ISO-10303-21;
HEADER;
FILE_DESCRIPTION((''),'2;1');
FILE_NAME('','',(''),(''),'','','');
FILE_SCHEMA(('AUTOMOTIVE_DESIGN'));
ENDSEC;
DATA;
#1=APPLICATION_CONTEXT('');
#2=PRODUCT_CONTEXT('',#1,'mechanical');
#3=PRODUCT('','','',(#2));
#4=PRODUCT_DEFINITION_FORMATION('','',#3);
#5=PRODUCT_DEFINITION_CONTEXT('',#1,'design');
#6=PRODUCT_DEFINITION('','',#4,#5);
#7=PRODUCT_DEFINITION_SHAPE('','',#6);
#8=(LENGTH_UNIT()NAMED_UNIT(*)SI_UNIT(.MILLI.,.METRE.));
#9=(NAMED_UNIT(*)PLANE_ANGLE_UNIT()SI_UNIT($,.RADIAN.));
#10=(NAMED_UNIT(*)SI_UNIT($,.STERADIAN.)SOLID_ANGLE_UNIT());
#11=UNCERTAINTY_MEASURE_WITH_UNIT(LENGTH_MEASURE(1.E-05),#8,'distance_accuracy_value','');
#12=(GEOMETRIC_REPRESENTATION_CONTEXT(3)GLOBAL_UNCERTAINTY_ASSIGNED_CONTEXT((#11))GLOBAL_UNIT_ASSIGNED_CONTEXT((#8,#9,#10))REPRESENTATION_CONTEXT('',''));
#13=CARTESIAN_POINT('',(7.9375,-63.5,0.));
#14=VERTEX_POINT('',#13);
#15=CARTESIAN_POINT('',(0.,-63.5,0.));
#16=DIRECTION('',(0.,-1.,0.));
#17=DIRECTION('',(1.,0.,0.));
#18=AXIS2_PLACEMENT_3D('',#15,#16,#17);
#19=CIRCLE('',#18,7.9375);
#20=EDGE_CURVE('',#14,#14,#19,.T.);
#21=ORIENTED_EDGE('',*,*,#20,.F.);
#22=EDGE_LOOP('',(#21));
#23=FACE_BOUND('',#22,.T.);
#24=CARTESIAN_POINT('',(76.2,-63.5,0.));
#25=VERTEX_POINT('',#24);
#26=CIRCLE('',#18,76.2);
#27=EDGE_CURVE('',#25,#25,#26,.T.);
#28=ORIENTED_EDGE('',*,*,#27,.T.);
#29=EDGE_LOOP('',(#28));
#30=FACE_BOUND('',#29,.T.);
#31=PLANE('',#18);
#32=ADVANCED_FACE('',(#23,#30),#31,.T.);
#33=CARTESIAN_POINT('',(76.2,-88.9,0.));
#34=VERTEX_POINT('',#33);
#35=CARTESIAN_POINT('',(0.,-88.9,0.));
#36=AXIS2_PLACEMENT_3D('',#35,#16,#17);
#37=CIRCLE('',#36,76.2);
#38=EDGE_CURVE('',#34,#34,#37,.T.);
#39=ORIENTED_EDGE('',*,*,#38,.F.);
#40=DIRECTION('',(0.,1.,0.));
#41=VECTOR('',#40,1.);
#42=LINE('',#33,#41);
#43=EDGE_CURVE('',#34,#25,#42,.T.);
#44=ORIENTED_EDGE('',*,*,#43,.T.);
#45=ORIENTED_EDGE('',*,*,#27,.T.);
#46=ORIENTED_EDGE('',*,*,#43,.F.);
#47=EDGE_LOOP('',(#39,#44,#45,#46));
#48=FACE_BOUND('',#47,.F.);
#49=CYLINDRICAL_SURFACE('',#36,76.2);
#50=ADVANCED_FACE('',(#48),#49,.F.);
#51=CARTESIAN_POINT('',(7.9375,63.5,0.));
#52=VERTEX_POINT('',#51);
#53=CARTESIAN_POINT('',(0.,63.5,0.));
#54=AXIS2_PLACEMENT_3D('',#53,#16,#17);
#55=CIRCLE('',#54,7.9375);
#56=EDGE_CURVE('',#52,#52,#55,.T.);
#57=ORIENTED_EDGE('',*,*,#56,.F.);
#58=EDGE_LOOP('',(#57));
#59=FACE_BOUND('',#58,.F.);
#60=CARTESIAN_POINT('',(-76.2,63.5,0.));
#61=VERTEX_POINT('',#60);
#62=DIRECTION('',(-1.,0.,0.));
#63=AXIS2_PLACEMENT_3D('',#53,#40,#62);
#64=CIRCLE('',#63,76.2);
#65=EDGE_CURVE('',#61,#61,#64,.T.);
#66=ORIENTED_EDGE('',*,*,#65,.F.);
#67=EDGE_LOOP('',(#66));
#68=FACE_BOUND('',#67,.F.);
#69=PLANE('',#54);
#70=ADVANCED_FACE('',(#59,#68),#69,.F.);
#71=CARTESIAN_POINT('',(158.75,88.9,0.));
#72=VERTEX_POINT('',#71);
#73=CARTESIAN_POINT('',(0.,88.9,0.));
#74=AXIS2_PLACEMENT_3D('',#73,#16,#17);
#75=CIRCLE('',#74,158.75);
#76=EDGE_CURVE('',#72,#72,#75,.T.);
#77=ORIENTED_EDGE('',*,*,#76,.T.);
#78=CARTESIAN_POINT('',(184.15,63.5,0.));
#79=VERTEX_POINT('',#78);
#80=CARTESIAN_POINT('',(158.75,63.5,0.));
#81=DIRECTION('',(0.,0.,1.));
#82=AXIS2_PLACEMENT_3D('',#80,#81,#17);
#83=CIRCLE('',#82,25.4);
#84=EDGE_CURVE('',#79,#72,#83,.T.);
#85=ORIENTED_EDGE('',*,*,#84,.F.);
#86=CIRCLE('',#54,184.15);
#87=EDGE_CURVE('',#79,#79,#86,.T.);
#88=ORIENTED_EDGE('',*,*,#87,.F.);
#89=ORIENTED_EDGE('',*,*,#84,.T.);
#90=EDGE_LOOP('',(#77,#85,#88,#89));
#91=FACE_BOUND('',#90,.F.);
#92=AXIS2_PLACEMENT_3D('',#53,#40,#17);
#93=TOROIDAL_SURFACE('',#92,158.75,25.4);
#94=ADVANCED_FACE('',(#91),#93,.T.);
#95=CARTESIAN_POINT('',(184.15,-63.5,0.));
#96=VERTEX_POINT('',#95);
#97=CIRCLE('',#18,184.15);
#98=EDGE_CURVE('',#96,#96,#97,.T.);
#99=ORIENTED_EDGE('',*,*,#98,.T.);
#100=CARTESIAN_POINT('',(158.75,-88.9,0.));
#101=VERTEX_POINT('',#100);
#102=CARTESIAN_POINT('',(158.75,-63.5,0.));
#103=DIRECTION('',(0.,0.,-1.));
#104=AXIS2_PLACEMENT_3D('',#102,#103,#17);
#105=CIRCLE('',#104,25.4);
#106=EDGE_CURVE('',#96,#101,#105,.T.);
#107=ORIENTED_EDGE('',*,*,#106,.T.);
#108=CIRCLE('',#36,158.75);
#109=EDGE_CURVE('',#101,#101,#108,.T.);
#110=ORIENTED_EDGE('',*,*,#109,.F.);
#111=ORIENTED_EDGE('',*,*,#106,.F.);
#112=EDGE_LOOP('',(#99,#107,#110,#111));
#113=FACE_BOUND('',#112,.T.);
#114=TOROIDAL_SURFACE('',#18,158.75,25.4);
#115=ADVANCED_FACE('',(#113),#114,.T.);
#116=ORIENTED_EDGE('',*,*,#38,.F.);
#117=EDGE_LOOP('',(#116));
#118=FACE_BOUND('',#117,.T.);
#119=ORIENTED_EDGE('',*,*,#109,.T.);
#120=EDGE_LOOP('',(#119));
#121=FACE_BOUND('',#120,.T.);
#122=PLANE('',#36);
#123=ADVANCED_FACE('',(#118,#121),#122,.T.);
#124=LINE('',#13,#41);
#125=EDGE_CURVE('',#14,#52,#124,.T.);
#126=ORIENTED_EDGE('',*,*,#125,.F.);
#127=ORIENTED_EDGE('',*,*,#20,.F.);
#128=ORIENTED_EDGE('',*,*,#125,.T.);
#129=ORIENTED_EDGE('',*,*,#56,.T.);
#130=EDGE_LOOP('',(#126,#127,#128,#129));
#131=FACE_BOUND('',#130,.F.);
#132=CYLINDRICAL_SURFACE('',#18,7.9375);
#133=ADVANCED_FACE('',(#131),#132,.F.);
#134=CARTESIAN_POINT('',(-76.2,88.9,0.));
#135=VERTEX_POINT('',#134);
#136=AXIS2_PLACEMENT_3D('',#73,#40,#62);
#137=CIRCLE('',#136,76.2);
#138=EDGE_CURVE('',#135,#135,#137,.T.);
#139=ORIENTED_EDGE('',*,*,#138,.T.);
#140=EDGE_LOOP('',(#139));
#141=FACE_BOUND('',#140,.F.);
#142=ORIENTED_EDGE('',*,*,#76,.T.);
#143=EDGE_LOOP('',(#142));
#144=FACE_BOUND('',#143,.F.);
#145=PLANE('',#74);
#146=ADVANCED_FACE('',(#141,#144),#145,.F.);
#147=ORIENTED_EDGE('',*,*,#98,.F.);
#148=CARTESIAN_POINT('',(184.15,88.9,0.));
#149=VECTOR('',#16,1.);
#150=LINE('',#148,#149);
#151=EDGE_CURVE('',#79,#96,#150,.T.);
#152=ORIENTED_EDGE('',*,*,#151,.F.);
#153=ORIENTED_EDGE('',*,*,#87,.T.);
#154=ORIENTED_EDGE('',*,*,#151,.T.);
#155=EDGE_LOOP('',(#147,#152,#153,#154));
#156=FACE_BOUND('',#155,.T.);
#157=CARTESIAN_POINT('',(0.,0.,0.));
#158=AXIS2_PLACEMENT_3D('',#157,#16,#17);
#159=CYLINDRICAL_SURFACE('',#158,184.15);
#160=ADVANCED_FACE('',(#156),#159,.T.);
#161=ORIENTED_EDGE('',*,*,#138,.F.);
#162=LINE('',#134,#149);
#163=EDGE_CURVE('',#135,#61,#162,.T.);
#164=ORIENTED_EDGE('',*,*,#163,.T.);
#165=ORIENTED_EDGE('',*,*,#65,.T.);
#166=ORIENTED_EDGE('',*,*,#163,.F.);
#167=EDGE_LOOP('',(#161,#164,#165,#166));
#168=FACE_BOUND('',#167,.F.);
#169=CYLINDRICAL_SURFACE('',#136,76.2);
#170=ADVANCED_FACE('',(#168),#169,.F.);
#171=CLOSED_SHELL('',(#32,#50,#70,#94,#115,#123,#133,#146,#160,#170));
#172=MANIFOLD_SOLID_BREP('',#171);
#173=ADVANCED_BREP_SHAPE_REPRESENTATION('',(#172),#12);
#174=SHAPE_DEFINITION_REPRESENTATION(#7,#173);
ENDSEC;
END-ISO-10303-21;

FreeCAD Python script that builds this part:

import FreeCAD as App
import Part
import Sketcher
Q = App.Units.Quantity


def edges_at(feature, points):
    """Names of the edges that pass closest to the given points."""
    edges = feature.Shape.Edges
    near = lambda p: min(range(len(edges)), key=lambda i: edges[i].distToShape(Part.Vertex(*p))[0])
    return sorted({f"Edge{near(p) + 1}" for p in points})

doc = App.newDocument("Part")
body = doc.addObject("PartDesign::Body", "Body")

sketch1 = doc.addObject("Sketcher::SketchObject", "Sketch")
body.addObject(sketch1)
sketch1.AttachmentSupport = (doc.XZ_Plane, [""])
sketch1.MapMode = "FlatFace"
sketch1.addGeometry(Part.Circle(App.Vector(0, 0, 0), App.Vector(0, 0, 1), 184), False)
sketch1.addConstraint([
    Sketcher.Constraint("Coincident", 0, 3, -1, 1),
    Sketcher.Constraint("Diameter", 0, Q("14.5 in")),
])
pad1 = doc.addObject("PartDesign::Pad", "Pad")
body.addObject(pad1)
pad1.Profile = sketch1
pad1.Length = Q("7 in")
pad1.Midplane = True

sketch2 = doc.addObject("Sketcher::SketchObject", "Sketch001")
body.addObject(sketch2)
sketch2.AttachmentSupport = (doc.XZ_Plane, [""])
sketch2.MapMode = "FlatFace"
sketch2.AttachmentOffset = App.Placement(App.Vector(0, 0, 3.5 * 25.4), App.Rotation())
sketch2.addGeometry(Part.Circle(App.Vector(0, 0, 0), App.Vector(0, 0, 1), 76), False)
sketch2.addConstraint([
    Sketcher.Constraint("Coincident", 0, 3, -1, 1),
    Sketcher.Constraint("Diameter", 0, Q("6 in")),
])
pocket1 = doc.addObject("PartDesign::Pocket", "Pocket")
body.addObject(pocket1)
pocket1.Profile = sketch2
pocket1.Length = Q("1 in")

sketch3 = doc.addObject("Sketcher::SketchObject", "Sketch002")
body.addObject(sketch3)
sketch3.AttachmentSupport = (doc.XZ_Plane, [""])
sketch3.MapMode = "FlatFace"
sketch3.AttachmentOffset = App.Placement(App.Vector(0, 0, -3.5 * 25.4), App.Rotation())
sketch3.addGeometry(Part.Circle(App.Vector(0, 0, 0), App.Vector(0, 0, 1), 76), False)
sketch3.addConstraint([
    Sketcher.Constraint("Coincident", 0, 3, -1, 1),
    Sketcher.Constraint("Diameter", 0, Q("6 in")),
])
pocket2 = doc.addObject("PartDesign::Pocket", "Pocket001")
body.addObject(pocket2)
pocket2.Profile = sketch3
pocket2.Length = Q("1 in")
pocket2.Reversed = True

sketch4 = doc.addObject("Sketcher::SketchObject", "Sketch003")
body.addObject(sketch4)
sketch4.AttachmentSupport = (doc.XZ_Plane, [""])
sketch4.MapMode = "FlatFace"
sketch4.AttachmentOffset = App.Placement(App.Vector(0, 0, 3.5 * 25.4), App.Rotation())
sketch4.addGeometry(Part.Circle(App.Vector(0, 0, 0), App.Vector(0, 0, 1), 13), False)
sketch4.addConstraint([
    Sketcher.Constraint("Coincident", 0, 3, -1, 1),
    Sketcher.Constraint("Diameter", 0, Q("1 in")),
])
pocket3 = doc.addObject("PartDesign::Pocket", "Pocket002")
body.addObject(pocket3)
pocket3.Profile = sketch4
pocket3.Length = Q("14 in")
pocket3.Midplane = True
doc.recompute()

fillet = doc.addObject("PartDesign::Fillet", "Fillet")
body.addObject(fillet)
fillet.Base = (pocket3, edges_at(pocket3, [(-184.15, 88.9, 0), (-184.15, -88.9, 0)]))
fillet.Radius = Q("1 in")

sketch5 = doc.addObject("Sketcher::SketchObject", "Sketch004")
body.addObject(sketch5)
sketch5.AttachmentSupport = (doc.XZ_Plane, [""])
sketch5.MapMode = "FlatFace"
sketch5.AttachmentOffset = App.Placement(App.Vector(0, 0, 2.5 * 25.4), App.Rotation())
sketch5.addGeometry([
    Part.Circle(App.Vector(0, 0, 0), App.Vector(0, 0, 1), 13),
    Part.Circle(App.Vector(0, 0, 0), App.Vector(0, 0, 1), 8),
], False)
sketch5.addConstraint([
    Sketcher.Constraint("Coincident", 0, 3, -1, 1),
    Sketcher.Constraint("Coincident", 1, 3, -1, 1),
    Sketcher.Constraint("Diameter", 0, Q("1 in")),
    Sketcher.Constraint("Diameter", 1, Q("0.625 in")),
])
pad2 = doc.addObject("PartDesign::Pad", "Pad001")
body.addObject(pad2)
pad2.Profile = sketch5
pad2.Length = Q("5 in")
pad2.Reversed = True

doc.recompute()
